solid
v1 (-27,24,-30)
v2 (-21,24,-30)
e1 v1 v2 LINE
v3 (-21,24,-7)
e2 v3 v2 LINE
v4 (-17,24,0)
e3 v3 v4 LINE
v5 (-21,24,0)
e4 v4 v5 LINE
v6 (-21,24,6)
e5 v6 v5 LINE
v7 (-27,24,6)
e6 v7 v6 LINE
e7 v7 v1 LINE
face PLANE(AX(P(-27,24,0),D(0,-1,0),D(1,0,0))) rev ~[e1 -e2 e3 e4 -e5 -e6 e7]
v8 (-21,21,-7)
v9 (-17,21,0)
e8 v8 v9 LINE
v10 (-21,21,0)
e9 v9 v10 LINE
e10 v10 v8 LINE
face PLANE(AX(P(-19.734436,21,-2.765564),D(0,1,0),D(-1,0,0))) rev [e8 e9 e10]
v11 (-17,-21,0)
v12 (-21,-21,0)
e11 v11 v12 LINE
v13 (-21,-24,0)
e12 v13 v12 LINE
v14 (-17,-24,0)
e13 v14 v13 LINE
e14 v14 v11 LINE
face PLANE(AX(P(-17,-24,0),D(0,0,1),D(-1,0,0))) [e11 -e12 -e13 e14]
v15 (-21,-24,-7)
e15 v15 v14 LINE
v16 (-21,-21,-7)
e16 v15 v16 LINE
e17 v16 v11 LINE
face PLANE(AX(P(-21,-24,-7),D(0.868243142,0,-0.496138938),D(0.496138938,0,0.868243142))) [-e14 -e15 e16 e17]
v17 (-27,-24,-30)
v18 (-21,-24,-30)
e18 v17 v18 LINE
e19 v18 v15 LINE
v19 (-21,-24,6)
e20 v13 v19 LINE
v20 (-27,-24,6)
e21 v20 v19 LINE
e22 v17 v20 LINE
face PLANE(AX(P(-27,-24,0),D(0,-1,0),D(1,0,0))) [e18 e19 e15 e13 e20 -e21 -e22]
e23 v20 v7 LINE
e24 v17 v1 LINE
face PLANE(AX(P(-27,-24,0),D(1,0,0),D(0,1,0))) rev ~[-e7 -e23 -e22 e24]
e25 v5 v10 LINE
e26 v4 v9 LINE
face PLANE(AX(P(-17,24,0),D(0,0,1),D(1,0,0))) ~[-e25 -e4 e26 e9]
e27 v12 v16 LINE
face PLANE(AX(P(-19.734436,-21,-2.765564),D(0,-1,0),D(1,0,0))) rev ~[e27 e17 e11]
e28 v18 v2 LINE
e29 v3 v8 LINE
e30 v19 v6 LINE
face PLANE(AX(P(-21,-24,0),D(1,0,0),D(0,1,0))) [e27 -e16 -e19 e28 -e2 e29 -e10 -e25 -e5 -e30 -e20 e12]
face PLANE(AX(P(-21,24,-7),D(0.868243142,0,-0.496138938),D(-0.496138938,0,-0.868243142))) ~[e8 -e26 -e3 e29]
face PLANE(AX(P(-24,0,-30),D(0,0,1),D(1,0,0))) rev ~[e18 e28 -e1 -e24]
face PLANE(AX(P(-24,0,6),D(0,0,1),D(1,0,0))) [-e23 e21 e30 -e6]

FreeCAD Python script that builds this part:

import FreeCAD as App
import Part
import Sketcher
from FreeCAD import Vector


def add_polygon(sketch, points):
    """Adds a closed chain of lines whose ends are joined by coincident constraints."""
    first, n = sketch.GeometryCount, len(points)
    for a, b in zip(points, points[1:] + points[:1]):
        sketch.addGeometry(Part.LineSegment(App.Vector(*a, 0), App.Vector(*b, 0)), False)
    for i in range(n):
        sketch.addConstraint(Sketcher.Constraint("Coincident", first + i, 2, first + (i + 1) % n, 1))

doc = App.newDocument("Part")
body = doc.addObject("PartDesign::Body", "Body")

# Sketch on XY plane
sketch1 = body.newObject("Sketcher::SketchObject", "Sketch")
sketch1.AttachmentSupport = (doc.getObject("XY_Plane"), [""])
sketch1.MapMode = "FlatFace"
add_polygon(sketch1, [(-27, 24), (-27, -24), (-21, -24), (-21, 24)])  # lines 0-3
sketch1.addConstraint(Sketcher.Constraint("Vertical", 0))
sketch1.addConstraint(Sketcher.Constraint("Horizontal", 1))
sketch1.addConstraint(Sketcher.Constraint("Vertical", 2))
sketch1.addConstraint(Sketcher.Constraint("Horizontal", 3))
sketch1.addConstraint(Sketcher.Constraint("DistanceX", 1, 1, 1, 2, 6.0))
sketch1.addConstraint(Sketcher.Constraint("DistanceY", 0, 2, 0, 1, 48.0))
sketch1.addConstraint(Sketcher.Constraint("DistanceX", 0, 2, -1, 1, 27.0))
sketch1.addConstraint(Sketcher.Constraint("DistanceY", 0, 2, -1, 1, 24.0))
pad1 = body.newObject("PartDesign::Pad", "Pad")
pad1.Profile = sketch1
pad1.Type = "TwoLengths"
pad1.Length = 6
pad1.Length2 = 30

# Sketch on XZ plane
sketch2 = body.newObject("Sketcher::SketchObject", "Sketch001")
sketch2.AttachmentSupport = (doc.getObject("XZ_Plane"), [""])
sketch2.MapMode = "FlatFace"
sketch2.AttachmentOffset = App.Placement(Vector(0, 0, 24), App.Rotation())
add_polygon(sketch2, [(-21, 0), (-21, -7), (-17, 0)])  # lines 0-2
sketch2.addConstraint(Sketcher.Constraint("Vertical", 0))
sketch2.addConstraint(Sketcher.Constraint("Horizontal", 2))
sketch2.addConstraint(Sketcher.Constraint("PointOnObject", 1, 2, -1))
sketch2.addConstraint(Sketcher.Constraint("DistanceX", 2, 2, 2, 1, 4.0))
sketch2.addConstraint(Sketcher.Constraint("DistanceY", 0, 2, 0, 1, 7.0))
sketch2.addConstraint(Sketcher.Constraint("DistanceX", 0, 2, -1, 1, 21.0))
pad2 = body.newObject("PartDesign::Pad", "Pad001")
pad2.Profile = sketch2
pad2.Length = 3
pad2.Reversed = True
doc.recompute()

mirrored = body.newObject("PartDesign::Mirrored", "Mirrored")
mirrored.Originals = [pad2]
mirrored.MirrorPlane = (doc.getObject("XZ_Plane"), [""])
body.Tip = mirrored

doc.recompute()
